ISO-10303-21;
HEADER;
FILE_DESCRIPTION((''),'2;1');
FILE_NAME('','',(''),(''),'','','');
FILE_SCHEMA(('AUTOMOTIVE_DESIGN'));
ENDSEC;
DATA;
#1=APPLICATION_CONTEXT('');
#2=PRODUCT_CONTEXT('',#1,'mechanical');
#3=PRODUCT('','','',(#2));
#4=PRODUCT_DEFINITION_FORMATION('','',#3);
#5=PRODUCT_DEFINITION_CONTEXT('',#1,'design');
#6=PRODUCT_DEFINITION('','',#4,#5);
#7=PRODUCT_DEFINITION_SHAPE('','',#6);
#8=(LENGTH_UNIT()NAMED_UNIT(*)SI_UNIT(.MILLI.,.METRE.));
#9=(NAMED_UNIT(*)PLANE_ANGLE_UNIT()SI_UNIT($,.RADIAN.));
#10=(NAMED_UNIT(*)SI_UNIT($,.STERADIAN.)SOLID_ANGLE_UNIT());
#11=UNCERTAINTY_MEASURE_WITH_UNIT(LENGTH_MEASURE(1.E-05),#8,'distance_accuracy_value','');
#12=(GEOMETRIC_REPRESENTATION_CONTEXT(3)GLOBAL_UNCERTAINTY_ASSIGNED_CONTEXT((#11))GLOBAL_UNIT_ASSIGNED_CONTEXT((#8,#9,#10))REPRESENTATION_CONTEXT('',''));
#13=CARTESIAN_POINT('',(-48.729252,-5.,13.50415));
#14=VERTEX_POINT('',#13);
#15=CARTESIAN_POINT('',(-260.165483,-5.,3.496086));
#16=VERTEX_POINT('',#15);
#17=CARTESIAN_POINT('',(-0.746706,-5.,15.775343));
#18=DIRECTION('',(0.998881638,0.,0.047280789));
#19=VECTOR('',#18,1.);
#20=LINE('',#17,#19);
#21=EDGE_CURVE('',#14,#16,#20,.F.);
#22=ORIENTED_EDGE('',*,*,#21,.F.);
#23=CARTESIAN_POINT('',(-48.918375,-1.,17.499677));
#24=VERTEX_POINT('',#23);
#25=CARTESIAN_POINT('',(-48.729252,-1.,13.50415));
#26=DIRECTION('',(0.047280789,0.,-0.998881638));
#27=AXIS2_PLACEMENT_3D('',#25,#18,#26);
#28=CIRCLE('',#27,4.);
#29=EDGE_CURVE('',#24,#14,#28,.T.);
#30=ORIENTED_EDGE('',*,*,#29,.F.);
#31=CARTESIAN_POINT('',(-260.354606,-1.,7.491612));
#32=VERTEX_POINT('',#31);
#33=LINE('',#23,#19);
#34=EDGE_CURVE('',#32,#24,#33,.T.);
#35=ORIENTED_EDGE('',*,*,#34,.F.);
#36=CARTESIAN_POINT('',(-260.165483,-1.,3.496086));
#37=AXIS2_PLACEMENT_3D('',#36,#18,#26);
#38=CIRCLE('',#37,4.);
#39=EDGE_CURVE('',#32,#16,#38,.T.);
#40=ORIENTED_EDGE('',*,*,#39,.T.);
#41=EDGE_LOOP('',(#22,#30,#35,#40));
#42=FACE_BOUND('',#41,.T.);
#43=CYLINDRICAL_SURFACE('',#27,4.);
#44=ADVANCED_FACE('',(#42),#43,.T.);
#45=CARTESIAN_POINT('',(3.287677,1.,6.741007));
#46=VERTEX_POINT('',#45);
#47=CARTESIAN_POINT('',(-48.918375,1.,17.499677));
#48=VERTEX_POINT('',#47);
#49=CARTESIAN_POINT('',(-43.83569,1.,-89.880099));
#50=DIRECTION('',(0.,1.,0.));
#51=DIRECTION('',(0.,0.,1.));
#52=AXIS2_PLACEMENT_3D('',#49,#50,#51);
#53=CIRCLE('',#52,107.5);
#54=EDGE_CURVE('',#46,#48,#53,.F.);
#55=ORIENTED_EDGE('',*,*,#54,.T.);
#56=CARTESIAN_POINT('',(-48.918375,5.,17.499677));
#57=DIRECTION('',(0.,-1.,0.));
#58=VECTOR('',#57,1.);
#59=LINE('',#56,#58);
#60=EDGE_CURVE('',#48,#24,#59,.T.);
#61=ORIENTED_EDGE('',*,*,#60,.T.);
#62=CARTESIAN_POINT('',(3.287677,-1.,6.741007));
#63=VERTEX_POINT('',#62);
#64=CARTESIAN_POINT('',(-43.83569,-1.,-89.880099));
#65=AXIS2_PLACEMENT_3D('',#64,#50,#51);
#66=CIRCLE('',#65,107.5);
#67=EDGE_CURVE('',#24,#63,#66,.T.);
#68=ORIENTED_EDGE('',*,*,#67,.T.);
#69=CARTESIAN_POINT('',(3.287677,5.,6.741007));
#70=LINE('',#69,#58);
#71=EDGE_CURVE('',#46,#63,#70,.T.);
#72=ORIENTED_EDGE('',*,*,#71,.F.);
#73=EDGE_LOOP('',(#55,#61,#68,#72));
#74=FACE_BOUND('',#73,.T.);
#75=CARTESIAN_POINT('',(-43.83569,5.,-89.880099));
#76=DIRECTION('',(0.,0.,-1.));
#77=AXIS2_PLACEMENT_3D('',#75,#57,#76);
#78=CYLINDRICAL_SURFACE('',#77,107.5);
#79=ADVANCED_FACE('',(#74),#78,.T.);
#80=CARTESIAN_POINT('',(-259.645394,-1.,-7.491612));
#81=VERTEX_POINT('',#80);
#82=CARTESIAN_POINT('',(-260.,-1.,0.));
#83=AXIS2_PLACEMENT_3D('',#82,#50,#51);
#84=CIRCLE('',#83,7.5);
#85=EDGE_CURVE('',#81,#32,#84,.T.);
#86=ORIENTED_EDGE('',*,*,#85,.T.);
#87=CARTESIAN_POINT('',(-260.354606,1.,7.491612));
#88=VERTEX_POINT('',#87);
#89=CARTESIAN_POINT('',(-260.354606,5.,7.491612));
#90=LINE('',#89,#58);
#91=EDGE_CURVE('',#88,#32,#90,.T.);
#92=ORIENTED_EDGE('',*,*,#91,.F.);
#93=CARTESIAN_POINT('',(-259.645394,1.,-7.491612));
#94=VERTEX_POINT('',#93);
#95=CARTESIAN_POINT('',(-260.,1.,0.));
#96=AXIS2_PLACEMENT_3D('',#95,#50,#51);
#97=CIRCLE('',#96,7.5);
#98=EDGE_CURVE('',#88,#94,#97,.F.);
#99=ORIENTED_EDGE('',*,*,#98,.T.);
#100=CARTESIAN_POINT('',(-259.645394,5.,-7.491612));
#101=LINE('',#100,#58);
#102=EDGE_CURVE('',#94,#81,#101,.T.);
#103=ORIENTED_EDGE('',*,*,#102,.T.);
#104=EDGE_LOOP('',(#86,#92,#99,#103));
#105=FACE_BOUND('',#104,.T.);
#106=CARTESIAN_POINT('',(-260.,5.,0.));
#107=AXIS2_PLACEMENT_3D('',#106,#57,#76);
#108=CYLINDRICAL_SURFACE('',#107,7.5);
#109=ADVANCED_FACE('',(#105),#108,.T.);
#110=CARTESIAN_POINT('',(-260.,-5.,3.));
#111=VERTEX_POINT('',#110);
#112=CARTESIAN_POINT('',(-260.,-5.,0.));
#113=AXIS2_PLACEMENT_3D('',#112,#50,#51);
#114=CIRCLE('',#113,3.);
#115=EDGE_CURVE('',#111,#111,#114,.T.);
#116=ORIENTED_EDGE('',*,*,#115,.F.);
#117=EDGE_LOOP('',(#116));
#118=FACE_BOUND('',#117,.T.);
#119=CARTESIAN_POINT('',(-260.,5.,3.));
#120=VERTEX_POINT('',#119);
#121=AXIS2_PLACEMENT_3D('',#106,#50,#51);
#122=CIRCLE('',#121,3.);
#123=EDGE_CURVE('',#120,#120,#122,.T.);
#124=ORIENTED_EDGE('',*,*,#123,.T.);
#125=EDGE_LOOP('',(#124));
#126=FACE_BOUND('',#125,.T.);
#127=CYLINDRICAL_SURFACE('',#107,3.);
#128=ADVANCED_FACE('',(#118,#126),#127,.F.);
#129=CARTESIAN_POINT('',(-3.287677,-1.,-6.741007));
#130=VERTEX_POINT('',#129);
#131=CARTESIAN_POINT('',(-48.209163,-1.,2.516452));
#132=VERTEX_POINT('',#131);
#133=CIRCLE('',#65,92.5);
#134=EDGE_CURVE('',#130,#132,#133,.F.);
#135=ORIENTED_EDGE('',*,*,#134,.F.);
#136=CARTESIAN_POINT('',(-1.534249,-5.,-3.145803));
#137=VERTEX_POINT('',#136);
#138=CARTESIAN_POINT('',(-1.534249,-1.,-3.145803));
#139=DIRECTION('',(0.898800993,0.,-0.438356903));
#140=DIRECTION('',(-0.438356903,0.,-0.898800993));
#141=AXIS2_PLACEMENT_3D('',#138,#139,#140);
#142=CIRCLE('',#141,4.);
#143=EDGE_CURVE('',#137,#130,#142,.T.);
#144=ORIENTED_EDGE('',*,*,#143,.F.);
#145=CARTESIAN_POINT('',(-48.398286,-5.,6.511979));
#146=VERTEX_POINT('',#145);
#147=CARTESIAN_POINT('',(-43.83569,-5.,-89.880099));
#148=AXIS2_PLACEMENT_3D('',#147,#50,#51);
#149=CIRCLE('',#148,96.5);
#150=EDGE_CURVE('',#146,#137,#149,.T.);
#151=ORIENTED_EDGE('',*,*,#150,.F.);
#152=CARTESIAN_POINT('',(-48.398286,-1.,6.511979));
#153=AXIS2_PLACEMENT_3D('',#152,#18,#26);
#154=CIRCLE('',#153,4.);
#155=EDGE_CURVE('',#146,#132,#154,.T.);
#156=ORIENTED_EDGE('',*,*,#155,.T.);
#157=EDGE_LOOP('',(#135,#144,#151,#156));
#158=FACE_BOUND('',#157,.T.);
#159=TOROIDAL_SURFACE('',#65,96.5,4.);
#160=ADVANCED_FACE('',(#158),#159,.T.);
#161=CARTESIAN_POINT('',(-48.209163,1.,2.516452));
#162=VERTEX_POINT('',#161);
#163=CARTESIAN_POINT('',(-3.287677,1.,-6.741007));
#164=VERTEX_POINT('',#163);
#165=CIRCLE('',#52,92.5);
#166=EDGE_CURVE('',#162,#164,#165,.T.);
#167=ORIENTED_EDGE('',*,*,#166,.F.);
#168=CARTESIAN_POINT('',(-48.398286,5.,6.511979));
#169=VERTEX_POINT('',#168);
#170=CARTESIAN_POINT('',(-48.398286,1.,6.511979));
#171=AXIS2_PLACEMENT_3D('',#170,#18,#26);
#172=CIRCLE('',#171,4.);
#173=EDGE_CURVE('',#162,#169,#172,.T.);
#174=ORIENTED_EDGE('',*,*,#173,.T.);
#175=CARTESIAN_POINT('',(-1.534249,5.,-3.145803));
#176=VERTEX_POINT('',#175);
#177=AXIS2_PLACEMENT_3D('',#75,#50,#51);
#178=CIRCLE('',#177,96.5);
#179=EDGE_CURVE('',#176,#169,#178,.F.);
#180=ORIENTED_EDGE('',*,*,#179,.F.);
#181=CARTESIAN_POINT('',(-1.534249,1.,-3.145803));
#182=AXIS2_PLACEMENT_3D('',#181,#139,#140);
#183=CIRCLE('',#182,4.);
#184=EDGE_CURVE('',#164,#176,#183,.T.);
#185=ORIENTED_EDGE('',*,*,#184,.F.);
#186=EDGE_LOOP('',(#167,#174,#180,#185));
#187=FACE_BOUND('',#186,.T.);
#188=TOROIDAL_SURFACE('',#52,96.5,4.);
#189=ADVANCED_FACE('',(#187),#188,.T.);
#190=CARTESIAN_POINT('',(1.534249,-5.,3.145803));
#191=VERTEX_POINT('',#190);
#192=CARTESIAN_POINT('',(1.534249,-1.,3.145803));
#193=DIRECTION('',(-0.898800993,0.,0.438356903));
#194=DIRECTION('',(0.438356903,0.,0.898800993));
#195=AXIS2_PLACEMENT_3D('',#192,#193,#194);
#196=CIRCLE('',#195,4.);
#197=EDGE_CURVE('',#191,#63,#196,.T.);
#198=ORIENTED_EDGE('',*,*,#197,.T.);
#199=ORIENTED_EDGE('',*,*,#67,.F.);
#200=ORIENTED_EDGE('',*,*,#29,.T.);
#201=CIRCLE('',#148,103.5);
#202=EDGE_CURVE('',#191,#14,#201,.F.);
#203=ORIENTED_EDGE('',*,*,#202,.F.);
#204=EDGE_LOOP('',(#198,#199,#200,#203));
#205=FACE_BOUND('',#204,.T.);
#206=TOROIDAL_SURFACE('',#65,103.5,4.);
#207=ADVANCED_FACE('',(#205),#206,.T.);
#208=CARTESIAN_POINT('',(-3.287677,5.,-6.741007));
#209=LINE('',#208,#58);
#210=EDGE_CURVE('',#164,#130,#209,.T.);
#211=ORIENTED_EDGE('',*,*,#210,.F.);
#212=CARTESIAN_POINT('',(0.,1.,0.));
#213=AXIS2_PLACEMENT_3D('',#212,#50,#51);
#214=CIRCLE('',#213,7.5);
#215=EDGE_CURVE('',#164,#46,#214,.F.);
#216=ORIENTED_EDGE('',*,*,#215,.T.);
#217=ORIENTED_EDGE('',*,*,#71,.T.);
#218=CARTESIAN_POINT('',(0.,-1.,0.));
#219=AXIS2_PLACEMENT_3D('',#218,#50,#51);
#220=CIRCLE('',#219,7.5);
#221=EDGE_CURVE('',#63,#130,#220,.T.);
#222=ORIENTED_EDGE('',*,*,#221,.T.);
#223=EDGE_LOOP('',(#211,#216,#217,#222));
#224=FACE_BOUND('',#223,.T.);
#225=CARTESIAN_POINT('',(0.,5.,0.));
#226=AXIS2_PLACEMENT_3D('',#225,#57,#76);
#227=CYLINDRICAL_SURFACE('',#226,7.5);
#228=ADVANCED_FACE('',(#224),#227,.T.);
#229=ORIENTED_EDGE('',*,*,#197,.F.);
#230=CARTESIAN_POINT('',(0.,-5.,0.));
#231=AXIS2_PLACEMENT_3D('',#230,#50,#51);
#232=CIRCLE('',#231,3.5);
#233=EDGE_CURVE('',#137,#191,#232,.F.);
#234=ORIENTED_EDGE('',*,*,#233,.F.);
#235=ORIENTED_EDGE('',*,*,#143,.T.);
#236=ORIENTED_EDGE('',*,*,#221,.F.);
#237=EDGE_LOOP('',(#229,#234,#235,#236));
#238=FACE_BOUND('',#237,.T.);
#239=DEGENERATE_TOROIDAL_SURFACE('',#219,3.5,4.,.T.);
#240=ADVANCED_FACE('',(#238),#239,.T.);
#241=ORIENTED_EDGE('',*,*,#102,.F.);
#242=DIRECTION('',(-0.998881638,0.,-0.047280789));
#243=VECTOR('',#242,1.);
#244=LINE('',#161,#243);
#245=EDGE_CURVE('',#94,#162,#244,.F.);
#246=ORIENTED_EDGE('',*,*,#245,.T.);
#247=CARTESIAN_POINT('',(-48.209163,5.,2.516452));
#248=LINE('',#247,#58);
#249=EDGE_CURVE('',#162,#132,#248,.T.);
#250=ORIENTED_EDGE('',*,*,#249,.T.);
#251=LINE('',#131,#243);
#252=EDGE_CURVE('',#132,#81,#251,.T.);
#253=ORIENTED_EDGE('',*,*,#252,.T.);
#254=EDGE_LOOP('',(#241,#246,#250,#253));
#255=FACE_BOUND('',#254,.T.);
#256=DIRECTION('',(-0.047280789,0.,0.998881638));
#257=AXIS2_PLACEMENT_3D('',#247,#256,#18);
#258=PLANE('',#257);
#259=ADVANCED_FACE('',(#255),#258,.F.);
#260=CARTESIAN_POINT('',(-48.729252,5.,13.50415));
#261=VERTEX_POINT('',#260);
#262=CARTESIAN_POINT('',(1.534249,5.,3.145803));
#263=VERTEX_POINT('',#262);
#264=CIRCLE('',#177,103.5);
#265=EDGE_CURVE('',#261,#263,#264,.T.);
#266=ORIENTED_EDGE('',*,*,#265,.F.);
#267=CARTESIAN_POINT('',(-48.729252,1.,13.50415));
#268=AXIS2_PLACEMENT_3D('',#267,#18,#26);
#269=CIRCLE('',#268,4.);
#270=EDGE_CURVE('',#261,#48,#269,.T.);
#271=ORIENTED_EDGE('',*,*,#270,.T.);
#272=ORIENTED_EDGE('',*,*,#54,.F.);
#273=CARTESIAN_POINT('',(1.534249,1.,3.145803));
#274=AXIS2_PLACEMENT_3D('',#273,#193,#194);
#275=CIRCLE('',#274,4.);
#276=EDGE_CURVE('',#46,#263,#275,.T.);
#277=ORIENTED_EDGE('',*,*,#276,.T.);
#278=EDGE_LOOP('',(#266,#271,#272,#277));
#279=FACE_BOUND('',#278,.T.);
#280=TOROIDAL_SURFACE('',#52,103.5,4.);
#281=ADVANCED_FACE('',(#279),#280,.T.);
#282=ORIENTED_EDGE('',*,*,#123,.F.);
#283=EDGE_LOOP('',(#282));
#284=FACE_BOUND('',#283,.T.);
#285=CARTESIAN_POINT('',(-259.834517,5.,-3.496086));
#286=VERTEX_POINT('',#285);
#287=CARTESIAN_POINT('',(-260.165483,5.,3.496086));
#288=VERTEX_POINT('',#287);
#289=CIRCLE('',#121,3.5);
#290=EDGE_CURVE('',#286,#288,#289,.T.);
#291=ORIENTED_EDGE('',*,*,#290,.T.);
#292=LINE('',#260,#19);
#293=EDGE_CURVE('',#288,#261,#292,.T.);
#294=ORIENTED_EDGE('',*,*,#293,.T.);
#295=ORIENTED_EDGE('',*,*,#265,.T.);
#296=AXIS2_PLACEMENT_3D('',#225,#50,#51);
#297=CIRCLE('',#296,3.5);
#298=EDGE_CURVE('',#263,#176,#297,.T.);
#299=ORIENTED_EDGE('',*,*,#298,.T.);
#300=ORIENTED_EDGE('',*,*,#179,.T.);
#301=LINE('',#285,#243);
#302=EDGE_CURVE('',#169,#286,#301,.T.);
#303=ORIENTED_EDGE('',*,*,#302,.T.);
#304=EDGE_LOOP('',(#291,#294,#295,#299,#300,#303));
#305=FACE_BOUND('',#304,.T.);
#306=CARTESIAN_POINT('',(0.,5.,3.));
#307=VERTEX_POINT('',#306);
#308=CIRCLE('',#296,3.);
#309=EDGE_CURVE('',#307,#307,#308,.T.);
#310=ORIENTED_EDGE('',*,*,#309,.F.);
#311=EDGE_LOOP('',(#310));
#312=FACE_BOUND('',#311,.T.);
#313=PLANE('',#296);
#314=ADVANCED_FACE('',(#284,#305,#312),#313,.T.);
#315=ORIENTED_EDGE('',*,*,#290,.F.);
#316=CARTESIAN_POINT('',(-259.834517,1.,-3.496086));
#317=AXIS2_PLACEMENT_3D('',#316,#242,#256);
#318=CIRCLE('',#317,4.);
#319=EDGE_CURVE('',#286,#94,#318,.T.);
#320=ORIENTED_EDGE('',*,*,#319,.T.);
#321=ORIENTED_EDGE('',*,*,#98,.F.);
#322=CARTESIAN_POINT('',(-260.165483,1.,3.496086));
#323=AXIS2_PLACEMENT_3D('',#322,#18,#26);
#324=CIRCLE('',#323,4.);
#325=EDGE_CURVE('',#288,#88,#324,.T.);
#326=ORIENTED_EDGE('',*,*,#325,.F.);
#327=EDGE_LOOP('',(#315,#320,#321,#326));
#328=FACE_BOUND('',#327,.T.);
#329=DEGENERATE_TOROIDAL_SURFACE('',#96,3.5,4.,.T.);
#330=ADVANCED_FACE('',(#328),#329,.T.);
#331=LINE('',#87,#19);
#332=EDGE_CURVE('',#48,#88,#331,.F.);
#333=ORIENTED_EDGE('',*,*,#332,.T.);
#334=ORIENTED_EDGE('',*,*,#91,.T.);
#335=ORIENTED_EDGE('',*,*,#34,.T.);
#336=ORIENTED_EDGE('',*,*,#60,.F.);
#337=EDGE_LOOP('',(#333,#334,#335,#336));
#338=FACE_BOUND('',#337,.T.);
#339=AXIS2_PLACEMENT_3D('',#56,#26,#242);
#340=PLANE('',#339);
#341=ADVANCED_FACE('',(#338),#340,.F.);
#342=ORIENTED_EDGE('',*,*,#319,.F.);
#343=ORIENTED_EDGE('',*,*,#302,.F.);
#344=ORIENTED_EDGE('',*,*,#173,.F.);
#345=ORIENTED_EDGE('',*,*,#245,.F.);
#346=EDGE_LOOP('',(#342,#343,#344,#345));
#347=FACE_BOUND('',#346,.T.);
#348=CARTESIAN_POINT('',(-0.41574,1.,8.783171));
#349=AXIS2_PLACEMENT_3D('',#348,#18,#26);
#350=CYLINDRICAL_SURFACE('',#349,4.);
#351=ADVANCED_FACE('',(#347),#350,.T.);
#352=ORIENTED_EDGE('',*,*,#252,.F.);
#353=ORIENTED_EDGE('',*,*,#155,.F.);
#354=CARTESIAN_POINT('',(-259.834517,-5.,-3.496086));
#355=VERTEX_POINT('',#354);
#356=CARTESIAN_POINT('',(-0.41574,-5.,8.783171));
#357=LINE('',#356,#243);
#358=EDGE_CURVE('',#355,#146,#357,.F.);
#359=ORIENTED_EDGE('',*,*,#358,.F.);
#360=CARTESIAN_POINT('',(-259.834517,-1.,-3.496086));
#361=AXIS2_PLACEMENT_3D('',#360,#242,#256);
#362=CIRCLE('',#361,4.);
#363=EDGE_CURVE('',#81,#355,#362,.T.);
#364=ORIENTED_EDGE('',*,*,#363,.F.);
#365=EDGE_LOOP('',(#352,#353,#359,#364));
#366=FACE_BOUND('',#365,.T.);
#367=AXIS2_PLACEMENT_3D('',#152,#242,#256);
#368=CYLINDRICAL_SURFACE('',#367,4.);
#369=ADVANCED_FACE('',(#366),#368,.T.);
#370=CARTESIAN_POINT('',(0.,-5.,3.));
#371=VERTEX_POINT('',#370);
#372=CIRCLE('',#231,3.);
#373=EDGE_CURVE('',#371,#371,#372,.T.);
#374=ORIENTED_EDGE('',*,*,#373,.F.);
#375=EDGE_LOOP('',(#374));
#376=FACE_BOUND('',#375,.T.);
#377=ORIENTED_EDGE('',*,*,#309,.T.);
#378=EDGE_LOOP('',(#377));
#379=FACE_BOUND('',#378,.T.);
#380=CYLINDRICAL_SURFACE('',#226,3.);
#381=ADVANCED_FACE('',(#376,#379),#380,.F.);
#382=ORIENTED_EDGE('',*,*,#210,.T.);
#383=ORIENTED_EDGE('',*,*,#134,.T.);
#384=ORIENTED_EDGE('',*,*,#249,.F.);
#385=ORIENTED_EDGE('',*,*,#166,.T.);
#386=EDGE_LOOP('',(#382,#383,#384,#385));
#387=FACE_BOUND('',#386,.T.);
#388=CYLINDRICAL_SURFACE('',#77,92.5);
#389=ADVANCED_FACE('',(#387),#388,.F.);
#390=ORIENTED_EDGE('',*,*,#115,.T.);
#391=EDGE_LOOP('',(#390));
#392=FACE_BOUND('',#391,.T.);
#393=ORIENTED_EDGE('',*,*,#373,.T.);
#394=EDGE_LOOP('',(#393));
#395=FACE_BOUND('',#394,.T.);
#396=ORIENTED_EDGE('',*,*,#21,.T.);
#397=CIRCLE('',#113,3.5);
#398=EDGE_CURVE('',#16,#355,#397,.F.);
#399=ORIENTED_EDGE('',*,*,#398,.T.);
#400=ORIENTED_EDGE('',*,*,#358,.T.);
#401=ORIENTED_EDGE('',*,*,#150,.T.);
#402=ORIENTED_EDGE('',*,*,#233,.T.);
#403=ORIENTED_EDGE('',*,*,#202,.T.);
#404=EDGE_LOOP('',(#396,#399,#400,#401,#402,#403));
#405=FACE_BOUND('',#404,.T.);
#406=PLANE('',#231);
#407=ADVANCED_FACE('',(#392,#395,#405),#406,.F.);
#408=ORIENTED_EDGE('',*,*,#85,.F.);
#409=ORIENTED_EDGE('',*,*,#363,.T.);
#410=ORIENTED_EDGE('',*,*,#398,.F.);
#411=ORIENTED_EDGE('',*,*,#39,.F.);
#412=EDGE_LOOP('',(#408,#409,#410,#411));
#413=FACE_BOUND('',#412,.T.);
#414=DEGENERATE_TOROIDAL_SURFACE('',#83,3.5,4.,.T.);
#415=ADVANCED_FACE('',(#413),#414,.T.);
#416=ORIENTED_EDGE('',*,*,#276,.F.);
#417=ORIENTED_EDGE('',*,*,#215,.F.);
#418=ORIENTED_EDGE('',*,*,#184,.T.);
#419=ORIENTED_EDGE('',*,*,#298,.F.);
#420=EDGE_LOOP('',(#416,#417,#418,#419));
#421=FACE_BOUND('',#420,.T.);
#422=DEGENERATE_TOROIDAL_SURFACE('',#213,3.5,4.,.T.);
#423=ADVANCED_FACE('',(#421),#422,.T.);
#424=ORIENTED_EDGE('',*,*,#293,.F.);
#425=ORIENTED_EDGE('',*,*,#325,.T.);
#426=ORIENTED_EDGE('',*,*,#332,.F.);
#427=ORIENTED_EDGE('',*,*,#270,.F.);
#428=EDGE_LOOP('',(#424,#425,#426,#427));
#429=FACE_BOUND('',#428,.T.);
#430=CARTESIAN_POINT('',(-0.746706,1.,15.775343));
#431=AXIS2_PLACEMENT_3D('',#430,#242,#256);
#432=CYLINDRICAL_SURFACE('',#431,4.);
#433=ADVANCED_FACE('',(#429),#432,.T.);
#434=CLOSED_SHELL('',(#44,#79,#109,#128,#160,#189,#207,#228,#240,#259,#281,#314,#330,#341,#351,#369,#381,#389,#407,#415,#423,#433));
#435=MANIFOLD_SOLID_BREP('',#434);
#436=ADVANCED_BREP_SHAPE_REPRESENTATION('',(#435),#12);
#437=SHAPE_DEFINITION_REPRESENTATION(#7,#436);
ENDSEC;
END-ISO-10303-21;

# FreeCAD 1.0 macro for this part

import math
import FreeCAD as App
import Part
import Sketcher

V = App.Vector
Q = App.Units.Quantity


def edges_at(feature, points):
    """Names of the edges that pass closest to the given points."""
    edges = feature.Shape.Edges
    near = lambda p: min(range(len(edges)), key=lambda i: edges[i].distToShape(Part.Vertex(*p))[0])
    return sorted({f"Edge{near(p) + 1}" for p in points})

doc = App.newDocument("Part")
body = doc.addObject("PartDesign::Body", "Body")

# Sketch on XZ plane
sketch1 = body.newObject("Sketcher::SketchObject", "Sketch")
sketch1.AttachmentSupport = (doc.getObject("XZ_Plane"), [""])
sketch1.MapMode = "FlatFace"
sketch1.addGeometry(Part.LineSegment(V(-260.4, 7.5, 0), V(-48.9, 17.5, 0)), False)
sketch1.addGeometry(Part.ArcOfCircle(Part.Circle(V(-43.8, -89.9, 0), V(0, 0, 1), 107.5), math.radians(64), math.radians(93)), False)
sketch1.addGeometry(Part.ArcOfCircle(Part.Circle(V(0, 0, 0), V(0, 0, 1), 7.5), math.radians(-116), math.radians(64)), False)
sketch1.addGeometry(Part.ArcOfCircle(Part.Circle(V(-43.8, -89.9, 0), V(0, 0, 1), 92.5), math.radians(64), math.radians(93)), False)
sketch1.addGeometry(Part.LineSegment(V(-48.2, 2.5, 0), V(-259.6, -7.5, 0)), False)
sketch1.addGeometry(Part.ArcOfCircle(Part.Circle(V(-260, 0, 0), V(0, 0, 1), 7.5), math.radians(93), math.radians(273)), False)
sketch1.addGeometry(Part.Circle(V(-260, 0, 0), V(0, 0, 1), 3), False)
sketch1.addGeometry(Part.Circle(V(0, 0, 0), V(0, 0, 1), 3), False)
sketch1.addConstraint(Sketcher.Constraint("Tangent", 0, 2, 1, 2))
sketch1.addConstraint(Sketcher.Constraint("Tangent", 1, 1, 2, 2))
sketch1.addConstraint(Sketcher.Constraint("Tangent", 2, 1, 3, 1))
sketch1.addConstraint(Sketcher.Constraint("Tangent", 3, 2, 4, 1))
sketch1.addConstraint(Sketcher.Constraint("Tangent", 4, 2, 5, 2))
sketch1.addConstraint(Sketcher.Constraint("Tangent", 5, 1, 0, 1))
sketch1.addConstraint(Sketcher.Constraint("Coincident", 2, 3, -1, 1))
sketch1.addConstraint(Sketcher.Constraint("Coincident", 7, 3, -1, 1))
sketch1.addConstraint(Sketcher.Constraint("Coincident", 3, 3, 1, 3))
sketch1.addConstraint(Sketcher.Constraint("Coincident", 6, 3, 5, 3))
sketch1.addConstraint(Sketcher.Constraint("Equal", 2, 5))
sketch1.addConstraint(Sketcher.Constraint("Equal", 6, 7))
sketch1.addConstraint(Sketcher.Constraint("PointOnObject", 5, 3, -1))
sketch1.addConstraint(Sketcher.Constraint("Diameter", 6, Q("6 mm")))
sketch1.addConstraint(Sketcher.Constraint("Radius", 1, Q("107.5 mm")))
sketch1.addConstraint(Sketcher.Constraint("Radius", 2, Q("7.5 mm")))
sketch1.addConstraint(Sketcher.Constraint("DistanceX", 5, 3, -1, 1, Q("260 mm")))
sketch1.addConstraint(Sketcher.Constraint("Angle", 0, Q("2.71 deg")))
pad1 = body.newObject("PartDesign::Pad", "Pad")
pad1.Profile = sketch1
pad1.Length = 10
pad1.Midplane = True
doc.recompute()

fillet = body.newObject("PartDesign::Fillet", "Fillet")
fillet.Base = (pad1, edges_at(pad1, [
    (-153.927, 5, -2.488),
    (-267.492, 5, -0.355),
    (-154.636, 5, 12.496),
    (-22.138, 5, 15.407),
    (6.741, 5, -3.288),
    (-22.138, -5, 15.407),
    (-154.636, -5, 12.496),
    (-267.492, -5, -0.355),
    (-153.927, -5, -2.488),
    (-25.166, -5, 0.716),
    (6.741, -5, -3.288),
    (-25.166, 5, 0.716),
]))
fillet.Radius = 4

doc.recompute()
